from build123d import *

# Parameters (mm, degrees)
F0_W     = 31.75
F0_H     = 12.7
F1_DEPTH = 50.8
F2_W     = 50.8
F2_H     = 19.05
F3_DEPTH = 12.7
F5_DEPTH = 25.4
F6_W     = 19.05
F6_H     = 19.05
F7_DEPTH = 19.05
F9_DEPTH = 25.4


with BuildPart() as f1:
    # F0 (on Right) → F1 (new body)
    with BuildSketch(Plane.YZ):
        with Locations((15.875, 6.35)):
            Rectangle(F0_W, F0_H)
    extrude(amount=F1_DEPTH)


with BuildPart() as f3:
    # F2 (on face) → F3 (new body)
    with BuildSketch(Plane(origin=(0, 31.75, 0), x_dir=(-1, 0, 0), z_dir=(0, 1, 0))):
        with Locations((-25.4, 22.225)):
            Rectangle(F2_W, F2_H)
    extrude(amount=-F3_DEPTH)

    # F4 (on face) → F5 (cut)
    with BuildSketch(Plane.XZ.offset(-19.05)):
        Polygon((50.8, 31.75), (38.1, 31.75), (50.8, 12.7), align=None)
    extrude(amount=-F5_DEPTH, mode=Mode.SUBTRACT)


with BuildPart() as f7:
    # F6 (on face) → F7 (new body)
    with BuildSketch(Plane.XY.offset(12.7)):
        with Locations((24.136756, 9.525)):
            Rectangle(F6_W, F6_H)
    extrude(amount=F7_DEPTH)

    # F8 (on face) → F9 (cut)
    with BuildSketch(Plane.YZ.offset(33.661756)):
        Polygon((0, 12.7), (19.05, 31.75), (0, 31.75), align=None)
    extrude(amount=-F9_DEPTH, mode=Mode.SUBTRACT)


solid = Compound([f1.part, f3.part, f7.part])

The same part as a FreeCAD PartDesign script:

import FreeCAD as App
import Part
import Sketcher
Q = App.Units.Quantity


def add_polygon(sketch, points):
    """Adds a closed chain of lines whose ends are joined by coincident constraints."""
    first, n = sketch.GeometryCount, len(points)
    for a, b in zip(points, points[1:] + points[:1]):
        sketch.addGeometry(Part.LineSegment(App.Vector(*a, 0), App.Vector(*b, 0)), False)
    for i in range(n):
        sketch.addConstraint(Sketcher.Constraint("Coincident", first + i, 2, first + (i + 1) % n, 1))

doc = App.newDocument("Part")
body = doc.addObject("PartDesign::Body", "Body")

sketch1 = body.newObject("Sketcher::SketchObject", "Sketch")
sketch1.AttachmentSupport = (doc.getObject("YZ_Plane"), [""])
sketch1.MapMode = "FlatFace"
add_polygon(sketch1, [(0, 13), (0, 0), (32, 0), (32, 13)])
sketch1.addConstraint([
    Sketcher.Constraint("Vertical", 0),
    Sketcher.Constraint("Horizontal", 1),
    Sketcher.Constraint("Vertical", 2),
    Sketcher.Constraint("Horizontal", 3),
    Sketcher.Constraint("Coincident", 0, 2, -1, 1),
    Sketcher.Constraint("DistanceY", 0, 2, 0, 1, Q("0.5 in")),
    Sketcher.Constraint("DistanceX", 1, 1, 1, 2, Q("1.25 in")),
])
pad1 = body.newObject("PartDesign::Pad", "Pad")
pad1.Profile = sketch1
pad1.Length = Q("2 in")
body2 = doc.addObject("PartDesign::Body", "Body001")

sketch2 = body2.newObject("Sketcher::SketchObject", "Sketch001")
sketch2.AttachmentSupport = (doc.getObject("XZ_Plane001"), [""])
sketch2.MapMode = "FlatFace"
sketch2.AttachmentOffset = App.Placement(App.Vector(0, 0, -1.25 * 25.4), App.Rotation())
add_polygon(sketch2, [(51, 32), (51, 13), (0, 13), (0, 32)])
sketch2.addConstraint([
    Sketcher.Constraint("Vertical", 0),
    Sketcher.Constraint("Horizontal", 1),
    Sketcher.Constraint("Vertical", 2),
    Sketcher.Constraint("Horizontal", 3),
    Sketcher.Constraint("PointOnObject", 1, 2, -2),
    Sketcher.Constraint("DistanceX", 1, 2, 1, 1, Q("2 in")),
    Sketcher.Constraint("DistanceY", 0, 2, 0, 1, Q("0.75 in")),
    Sketcher.Constraint("DistanceY", -1, 1, 0, 2, Q("0.5 in")),
])
pad2 = body2.newObject("PartDesign::Pad", "Pad001")
pad2.Profile = sketch2
pad2.Length = Q("0.5 in")

sketch3 = body2.newObject("Sketcher::SketchObject", "Sketch002")
sketch3.AttachmentSupport = (doc.getObject("XZ_Plane001"), [""])
sketch3.MapMode = "FlatFace"
sketch3.AttachmentOffset = App.Placement(App.Vector(0, 0, -0.75 * 25.4), App.Rotation())
add_polygon(sketch3, [(51, 32), (38, 32), (51, 13)])
sketch3.addConstraint([
    Sketcher.Constraint("Horizontal", 0),
    Sketcher.Constraint("Vertical", 2),
    Sketcher.Constraint("DistanceX", 0, 2, 0, 1, Q("0.5 in")),
    Sketcher.Constraint("DistanceX", -1, 1, 1, 2, Q("2 in")),
    Sketcher.Constraint("DistanceY", 2, 1, 2, 2, Q("0.75 in")),
    Sketcher.Constraint("DistanceY", -1, 1, 1, 2, Q("0.5 in")),
])
pocket1 = body2.newObject("PartDesign::Pocket", "Pocket")
pocket1.Profile = sketch3
pocket1.Length = Q("1 in")
body3 = doc.addObject("PartDesign::Body", "Body002")

sketch4 = body3.newObject("Sketcher::SketchObject", "Sketch003")
sketch4.AttachmentSupport = (doc.getObject("XY_Plane002"), [""])
sketch4.MapMode = "FlatFace"
sketch4.AttachmentOffset = App.Placement(App.Vector(0, 0, 0.5 * 25.4), App.Rotation())
add_polygon(sketch4, [(15, 19), (15, 0), (34, 0), (34, 19)])
sketch4.addConstraint([
    Sketcher.Constraint("Vertical", 0),
    Sketcher.Constraint("Horizontal", 1),
    Sketcher.Constraint("Vertical", 2),
    Sketcher.Constraint("Horizontal", 3),
    Sketcher.Constraint("PointOnObject", 0, 2, -1),
    Sketcher.Constraint("Equal", 3, 0),
    Sketcher.Constraint("DistanceX", 1, 1, 1, 2, Q("0.75 in")),
    Sketcher.Constraint("DistanceX", -1, 1, 0, 2, Q("14.611756 mm")),
])
pad3 = body3.newObject("PartDesign::Pad", "Pad002")
pad3.Profile = sketch4
pad3.Length = Q("0.75 in")

sketch5 = body3.newObject("Sketcher::SketchObject", "Sketch004")
sketch5.AttachmentSupport = (doc.getObject("YZ_Plane002"), [""])
sketch5.MapMode = "FlatFace"
sketch5.AttachmentOffset = App.Placement(App.Vector(0, 0, 33.661756), App.Rotation())
add_polygon(sketch5, [(0, 13), (19, 32), (0, 32)])
sketch5.addConstraint([
    Sketcher.Constraint("Horizontal", 1),
    Sketcher.Constraint("Vertical", 2),
    Sketcher.Constraint("PointOnObject", 1, 2, -2),
    Sketcher.Constraint("Equal", 1, 2),
    Sketcher.Constraint("DistanceX", 1, 2, 1, 1, Q("0.75 in")),
    Sketcher.Constraint("DistanceY", -1, 1, 2, 2, Q("0.5 in")),
])
pocket2 = body3.newObject("PartDesign::Pocket", "Pocket001")
pocket2.Profile = sketch5
pocket2.Length = Q("1 in")

doc.recompute()
